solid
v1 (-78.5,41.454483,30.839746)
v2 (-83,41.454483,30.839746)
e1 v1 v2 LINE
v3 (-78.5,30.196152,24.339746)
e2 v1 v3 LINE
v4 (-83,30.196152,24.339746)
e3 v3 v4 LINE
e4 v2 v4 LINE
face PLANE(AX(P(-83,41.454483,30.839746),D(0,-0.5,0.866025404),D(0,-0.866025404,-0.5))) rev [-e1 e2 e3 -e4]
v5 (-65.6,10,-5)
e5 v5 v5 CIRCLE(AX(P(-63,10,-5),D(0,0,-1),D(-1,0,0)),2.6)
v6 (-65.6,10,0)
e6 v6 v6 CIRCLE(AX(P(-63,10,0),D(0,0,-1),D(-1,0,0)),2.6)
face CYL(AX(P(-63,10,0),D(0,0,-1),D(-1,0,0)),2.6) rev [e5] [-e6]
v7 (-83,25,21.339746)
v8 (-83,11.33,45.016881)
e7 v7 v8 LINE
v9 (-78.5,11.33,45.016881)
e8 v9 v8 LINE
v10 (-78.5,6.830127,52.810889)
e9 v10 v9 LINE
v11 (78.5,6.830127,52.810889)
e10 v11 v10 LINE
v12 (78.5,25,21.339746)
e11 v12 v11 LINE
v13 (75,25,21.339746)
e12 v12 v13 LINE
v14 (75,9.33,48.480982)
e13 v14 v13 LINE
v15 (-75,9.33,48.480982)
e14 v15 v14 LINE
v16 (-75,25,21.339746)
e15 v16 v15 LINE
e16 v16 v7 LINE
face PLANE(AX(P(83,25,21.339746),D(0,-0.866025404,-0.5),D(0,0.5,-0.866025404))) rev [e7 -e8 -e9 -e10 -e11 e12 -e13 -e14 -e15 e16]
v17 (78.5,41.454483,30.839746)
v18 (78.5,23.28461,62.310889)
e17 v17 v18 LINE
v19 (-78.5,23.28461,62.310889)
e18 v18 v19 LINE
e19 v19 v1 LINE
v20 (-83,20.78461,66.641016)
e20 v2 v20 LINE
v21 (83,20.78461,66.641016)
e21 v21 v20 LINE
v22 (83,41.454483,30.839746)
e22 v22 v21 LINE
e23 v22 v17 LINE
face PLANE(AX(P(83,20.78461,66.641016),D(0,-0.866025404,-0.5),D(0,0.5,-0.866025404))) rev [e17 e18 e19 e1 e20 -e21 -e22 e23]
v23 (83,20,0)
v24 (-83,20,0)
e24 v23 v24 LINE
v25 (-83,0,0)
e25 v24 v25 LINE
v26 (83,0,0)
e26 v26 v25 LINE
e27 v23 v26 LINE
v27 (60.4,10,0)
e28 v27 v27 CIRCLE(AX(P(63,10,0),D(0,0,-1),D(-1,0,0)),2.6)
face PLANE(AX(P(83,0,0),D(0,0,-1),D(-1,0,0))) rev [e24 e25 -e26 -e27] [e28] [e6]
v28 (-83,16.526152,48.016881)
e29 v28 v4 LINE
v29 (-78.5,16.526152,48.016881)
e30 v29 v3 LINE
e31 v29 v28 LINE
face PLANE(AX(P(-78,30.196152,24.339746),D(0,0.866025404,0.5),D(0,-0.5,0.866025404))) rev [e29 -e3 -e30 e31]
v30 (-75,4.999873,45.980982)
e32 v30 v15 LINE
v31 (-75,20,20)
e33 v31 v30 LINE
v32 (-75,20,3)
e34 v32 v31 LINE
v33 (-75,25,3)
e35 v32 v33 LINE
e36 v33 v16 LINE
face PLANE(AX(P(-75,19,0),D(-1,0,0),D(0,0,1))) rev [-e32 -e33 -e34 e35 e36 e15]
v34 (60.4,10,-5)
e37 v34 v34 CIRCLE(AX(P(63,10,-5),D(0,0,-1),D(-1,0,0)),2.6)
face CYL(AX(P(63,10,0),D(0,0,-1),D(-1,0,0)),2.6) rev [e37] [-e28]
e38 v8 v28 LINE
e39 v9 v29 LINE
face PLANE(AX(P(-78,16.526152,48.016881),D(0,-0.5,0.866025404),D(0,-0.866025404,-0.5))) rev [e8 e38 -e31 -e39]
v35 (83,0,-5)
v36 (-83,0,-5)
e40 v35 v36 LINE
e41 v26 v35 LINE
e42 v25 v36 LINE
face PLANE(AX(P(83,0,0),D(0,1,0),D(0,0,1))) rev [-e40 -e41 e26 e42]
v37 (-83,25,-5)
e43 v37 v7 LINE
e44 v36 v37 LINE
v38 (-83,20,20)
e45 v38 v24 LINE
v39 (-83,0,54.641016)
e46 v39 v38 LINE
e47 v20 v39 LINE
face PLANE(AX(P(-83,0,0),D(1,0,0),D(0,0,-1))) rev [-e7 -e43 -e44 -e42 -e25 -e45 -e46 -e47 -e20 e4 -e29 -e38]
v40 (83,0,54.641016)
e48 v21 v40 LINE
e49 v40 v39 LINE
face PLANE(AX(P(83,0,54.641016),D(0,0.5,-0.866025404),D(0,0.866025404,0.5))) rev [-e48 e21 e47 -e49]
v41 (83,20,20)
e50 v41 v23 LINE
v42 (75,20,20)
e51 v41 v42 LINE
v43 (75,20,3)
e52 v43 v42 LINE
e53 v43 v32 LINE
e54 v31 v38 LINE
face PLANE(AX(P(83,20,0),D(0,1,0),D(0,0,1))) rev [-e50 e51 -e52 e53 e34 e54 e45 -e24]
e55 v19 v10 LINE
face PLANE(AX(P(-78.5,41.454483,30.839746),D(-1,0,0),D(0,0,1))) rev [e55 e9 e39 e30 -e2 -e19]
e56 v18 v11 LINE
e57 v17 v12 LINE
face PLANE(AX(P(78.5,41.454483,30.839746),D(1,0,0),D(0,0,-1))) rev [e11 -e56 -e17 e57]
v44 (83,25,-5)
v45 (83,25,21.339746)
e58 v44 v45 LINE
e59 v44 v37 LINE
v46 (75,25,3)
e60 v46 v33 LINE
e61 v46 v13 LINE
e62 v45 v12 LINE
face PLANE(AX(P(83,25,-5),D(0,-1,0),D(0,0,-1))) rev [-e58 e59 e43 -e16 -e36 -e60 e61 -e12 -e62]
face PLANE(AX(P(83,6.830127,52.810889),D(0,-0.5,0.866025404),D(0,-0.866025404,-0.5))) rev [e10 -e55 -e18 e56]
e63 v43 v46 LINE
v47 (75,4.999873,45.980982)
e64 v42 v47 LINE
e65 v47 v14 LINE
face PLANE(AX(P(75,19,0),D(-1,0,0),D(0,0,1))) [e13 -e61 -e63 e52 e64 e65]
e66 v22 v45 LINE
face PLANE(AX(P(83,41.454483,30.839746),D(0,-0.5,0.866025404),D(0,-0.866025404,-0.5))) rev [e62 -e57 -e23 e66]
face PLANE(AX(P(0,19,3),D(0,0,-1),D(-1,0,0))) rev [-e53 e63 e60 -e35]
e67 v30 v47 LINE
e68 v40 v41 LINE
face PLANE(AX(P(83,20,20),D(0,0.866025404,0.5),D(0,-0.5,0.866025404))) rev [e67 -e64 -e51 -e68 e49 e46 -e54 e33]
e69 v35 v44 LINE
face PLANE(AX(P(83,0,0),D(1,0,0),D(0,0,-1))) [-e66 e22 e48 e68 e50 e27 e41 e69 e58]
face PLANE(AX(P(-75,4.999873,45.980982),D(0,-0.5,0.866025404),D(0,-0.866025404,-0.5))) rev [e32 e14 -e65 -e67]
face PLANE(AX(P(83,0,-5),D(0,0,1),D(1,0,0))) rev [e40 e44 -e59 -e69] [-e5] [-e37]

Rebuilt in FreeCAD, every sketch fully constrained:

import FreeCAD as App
import Part
import Sketcher
Q = App.Units.Quantity

doc = App.newDocument("Part")
body = doc.addObject("PartDesign::Body", "Body")

# Sketch on YZ plane
sketch1 = doc.addObject("Sketcher::SketchObject", "Sketch")
body.addObject(sketch1)
sketch1.AttachmentSupport = (doc.YZ_Plane, [""])
sketch1.MapMode = "FlatFace"
sketch1.addGeometry([
    Part.LineSegment(App.Vector(20, 0, 0), App.Vector(0, 0, 0)),  # 0
    Part.LineSegment(App.Vector(0, 0, 0), App.Vector(0, -5, 0)),  # 1
    Part.LineSegment(App.Vector(0, -5, 0), App.Vector(25, -5, 0)),  # 2
    Part.LineSegment(App.Vector(25, -5, 0), App.Vector(25, 21, 0)),  # 3
    Part.LineSegment(App.Vector(25, 21, 0), App.Vector(7, 53, 0)),  # 4
    Part.LineSegment(App.Vector(7, 53, 0), App.Vector(23, 62, 0)),  # 5
    Part.LineSegment(App.Vector(23, 62, 0), App.Vector(21, 67, 0)),  # 6
    Part.LineSegment(App.Vector(21, 67, 0), App.Vector(0, 55, 0)),  # 7
    Part.LineSegment(App.Vector(0, 55, 0), App.Vector(20, 20, 0)),  # 8
    Part.LineSegment(App.Vector(20, 20, 0), App.Vector(20, 0, 0)),  # 9
], False)
sketch1.addConstraint([
    Sketcher.Constraint("Coincident", 0, 2, 1, 1),
    Sketcher.Constraint("Coincident", 1, 2, 2, 1),
    Sketcher.Constraint("Coincident", 2, 2, 3, 1),
    Sketcher.Constraint("Coincident", 3, 2, 4, 1),
    Sketcher.Constraint("Coincident", 4, 2, 5, 1),
    Sketcher.Constraint("Coincident", 5, 2, 6, 1),
    Sketcher.Constraint("Coincident", 6, 2, 7, 1),
    Sketcher.Constraint("Coincident", 7, 2, 8, 1),
    Sketcher.Constraint("Coincident", 8, 2, 9, 1),
    Sketcher.Constraint("Coincident", 9, 2, 0, 1),
    Sketcher.Constraint("Horizontal", 0),
    Sketcher.Constraint("Vertical", 1),
    Sketcher.Constraint("Horizontal", 2),
    Sketcher.Constraint("Vertical", 3),
    Sketcher.Constraint("Vertical", 9),
    Sketcher.Constraint("Coincident", 0, 2, -1, 1),
    Sketcher.Constraint("PointOnObject", 7, 2, -2),
    Sketcher.Constraint("Perpendicular", 4, 5),
    Sketcher.Constraint("Perpendicular", 5, 6),
    Sketcher.Constraint("Perpendicular", 6, 7),
    Sketcher.Constraint("Perpendicular", 7, 8),
    Sketcher.Constraint("Equal", 0, 9),
    Sketcher.Constraint("DistanceX", 0, 2, 0, 1, 20.0),
    Sketcher.Constraint("DistanceX", 2, 1, 2, 2, 25.0),
    Sketcher.Constraint("DistanceY", 1, 2, 1, 1, 5.0),
    Sketcher.Constraint("Angle", 4, Q("120 deg")),
    Sketcher.Constraint("Distance", 5, 19.0),
    Sketcher.Constraint("Distance", 6, 5.0),
    Sketcher.Constraint("Distance", 7, 24.0),
])
pad1 = doc.addObject("PartDesign::Pad", "Pad")
body.addObject(pad1)
pad1.Profile = sketch1
pad1.Length = 166
pad1.Midplane = True

# Sketch on an angled plane
sketch2 = doc.addObject("Sketcher::SketchObject", "Sketch001")
body.addObject(sketch2)
sketch2.Placement = App.Placement(App.Vector(0, 27.990381, 16.160254), App.Rotation(App.Vector(1, 0, 0), App.Vector(0, 0.5, -0.866025404), App.Vector(0, 0.866025404, 0.5), "ZXY"))
sketch2.addGeometry([
    Part.LineSegment(App.Vector(-83, -6, 0), App.Vector(-83, -42.3, 0)),  # 0
    Part.LineSegment(App.Vector(-83, -42.3, 0), App.Vector(-78.5, -42.3, 0)),  # 1
    Part.LineSegment(App.Vector(-78.5, -42.3, 0), App.Vector(-78.5, -6, 0)),  # 2
    Part.LineSegment(App.Vector(-78.5, -6, 0), App.Vector(-83, -6, 0)),  # 3
    Part.LineSegment(App.Vector(78.5, -6, 0), App.Vector(78.5, -42.3, 0)),  # 4
    Part.LineSegment(App.Vector(78.5, -42.3, 0), App.Vector(83, -42.3, 0)),  # 5
    Part.LineSegment(App.Vector(83, -42.3, 0), App.Vector(83, -6, 0)),  # 6
    Part.LineSegment(App.Vector(83, -6, 0), App.Vector(78.5, -6, 0)),  # 7
], False)
sketch2.addConstraint([
    Sketcher.Constraint("Coincident", 0, 2, 1, 1),
    Sketcher.Constraint("Coincident", 1, 2, 2, 1),
    Sketcher.Constraint("Coincident", 2, 2, 3, 1),
    Sketcher.Constraint("Coincident", 3, 2, 0, 1),
    Sketcher.Constraint("Coincident", 4, 2, 5, 1),
    Sketcher.Constraint("Coincident", 5, 2, 6, 1),
    Sketcher.Constraint("Coincident", 6, 2, 7, 1),
    Sketcher.Constraint("Coincident", 7, 2, 4, 1),
    Sketcher.Constraint("Vertical", 0),
    Sketcher.Constraint("Horizontal", 1),
    Sketcher.Constraint("Vertical", 2),
    Sketcher.Constraint("Horizontal", 3),
    Sketcher.Constraint("Vertical", 4),
    Sketcher.Constraint("Horizontal", 5),
    Sketcher.Constraint("Vertical", 6),
    Sketcher.Constraint("Horizontal", 7),
    Sketcher.Constraint("Symmetric", 1, 2, 4, 2, -2),
    Sketcher.Constraint("Symmetric", 3, 2, 6, 2, -2),
    Sketcher.Constraint("DistanceX", 1, 1, 1, 2, 4.5),
    Sketcher.Constraint("DistanceX", 0, 2, -1, 1, 83.0),
    Sketcher.Constraint("DistanceY", 0, 2, 0, 1, 36.339746),
    Sketcher.Constraint("DistanceY", 0, 2, -1, 1, 42.320508),
])
pad2 = doc.addObject("PartDesign::Pad", "Pad001")
body.addObject(pad2)
pad2.Profile = sketch2
pad2.Length = 19

# Sketch on XZ plane
sketch3 = doc.addObject("Sketcher::SketchObject", "Sketch002")
body.addObject(sketch3)
sketch3.AttachmentSupport = (doc.XZ_Plane, [""])
sketch3.MapMode = "FlatFace"
sketch3.AttachmentOffset = App.Placement(App.Vector(0, 0, -25), App.Rotation())
sketch3.addGeometry([
    Part.LineSegment(App.Vector(-75, 3, 0), App.Vector(-75, 21, 0)),
    Part.LineSegment(App.Vector(-75, 21, 0), App.Vector(75, 21, 0)),
    Part.LineSegment(App.Vector(75, 21, 0), App.Vector(75, 3, 0)),
    Part.LineSegment(App.Vector(75, 3, 0), App.Vector(-75, 3, 0)),
], False)
sketch3.addConstraint([
    Sketcher.Constraint("Coincident", 0, 2, 1, 1),
    Sketcher.Constraint("Coincident", 1, 2, 2, 1),
    Sketcher.Constraint("Coincident", 2, 2, 3, 1),
    Sketcher.Constraint("Coincident", 3, 2, 0, 1),
    Sketcher.Constraint("Vertical", 0),
    Sketcher.Constraint("Horizontal", 1),
    Sketcher.Constraint("Vertical", 2),
    Sketcher.Constraint("Horizontal", 3),
    Sketcher.Constraint("DistanceX", 1, 1, 1, 2, 150.0),
    Sketcher.Constraint("DistanceX", 0, 2, -1, 1, 75.0),
    Sketcher.Constraint("DistanceY", -1, 1, 2, 2, 3.0),
    Sketcher.Constraint("DistanceY", 0, 1, 0, 2, 18.339746),
])
pocket1 = doc.addObject("PartDesign::Pocket", "Pocket")
body.addObject(pocket1)
pocket1.Profile = sketch3
pocket1.Length = 6
pocket1.Reversed = True

# Sketch on an angled plane
sketch4 = doc.addObject("Sketcher::SketchObject", "Sketch003")
body.addObject(sketch4)
sketch4.Placement = App.Placement(App.Vector(0, 27.990381, 16.160254), App.Rotation(App.Vector(1, 0, 0), App.Vector(0, 0.5, -0.866025404), App.Vector(0, 0.866025404, 0.5), "ZXY"))
sketch4.addGeometry([
    Part.LineSegment(App.Vector(-75, -6, 0), App.Vector(-75, -37, 0)),
    Part.LineSegment(App.Vector(-75, -37, 0), App.Vector(75, -37, 0)),
    Part.LineSegment(App.Vector(75, -37, 0), App.Vector(75, -6, 0)),
    Part.LineSegment(App.Vector(75, -6, 0), App.Vector(-75, -6, 0)),
], False)
sketch4.addConstraint([
    Sketcher.Constraint("Coincident", 0, 2, 1, 1),
    Sketcher.Constraint("Coincident", 1, 2, 2, 1),
    Sketcher.Constraint("Coincident", 2, 2, 3, 1),
    Sketcher.Constraint("Coincident", 3, 2, 0, 1),
    Sketcher.Constraint("Vertical", 0),
    Sketcher.Constraint("Horizontal", 1),
    Sketcher.Constraint("Vertical", 2),
    Sketcher.Constraint("Horizontal", 3),
    Sketcher.Constraint("DistanceX", 1, 1, 1, 2, 150.0),
    Sketcher.Constraint("DistanceX", 0, 2, -1, 1, 75.0),
    Sketcher.Constraint("DistanceY", 0, 2, 0, 1, 31.34),
    Sketcher.Constraint("DistanceY", 0, 2, -1, 1, 37.320762),
])
pocket2 = doc.addObject("PartDesign::Pocket", "Pocket001")
body.addObject(pocket2)
pocket2.Profile = sketch4
pocket2.Length = 5

# Sketch on YZ plane
sketch5 = doc.addObject("Sketcher::SketchObject", "Sketch004")
body.addObject(sketch5)
sketch5.AttachmentSupport = (doc.YZ_Plane, [""])
sketch5.MapMode = "FlatFace"
sketch5.AttachmentOffset = App.Placement(App.Vector(0, 0, -83), App.Rotation())
sketch5.addGeometry([
    Part.LineSegment(App.Vector(25, 21, 0), App.Vector(11, 45, 0)),
    Part.LineSegment(App.Vector(11, 45, 0), App.Vector(17, 48, 0)),
    Part.LineSegment(App.Vector(17, 48, 0), App.Vector(30, 24, 0)),
    Part.LineSegment(App.Vector(30, 24, 0), App.Vector(25, 21, 0)),
], False)
sketch5.addConstraint([
    Sketcher.Constraint("Coincident", 0, 2, 1, 1),
    Sketcher.Constraint("Coincident", 1, 2, 2, 1),
    Sketcher.Constraint("Coincident", 2, 2, 3, 1),
    Sketcher.Constraint("Coincident", 3, 2, 0, 1),
    Sketcher.Constraint("Perpendicular", 0, 1),
    Sketcher.Constraint("Perpendicular", 1, 2),
    Sketcher.Constraint("Perpendicular", 2, 3),
    Sketcher.Constraint("Angle", 0, Q("120 deg")),
    Sketcher.Constraint("Distance", 1, 6.0),
    Sketcher.Constraint("DistanceX", -1, 1, 3, 2, 25.0),
    Sketcher.Constraint("Distance", 0, 27.34),
    Sketcher.Constraint("DistanceY", -1, 1, 0, 2, 45.016881),
])
pocket3 = doc.addObject("PartDesign::Pocket", "Pocket002")
body.addObject(pocket3)
pocket3.Profile = sketch5
pocket3.Length = 5
pocket3.Reversed = True

# Sketch on XY plane
sketch6 = doc.addObject("Sketcher::SketchObject", "Sketch005")
body.addObject(sketch6)
sketch6.AttachmentSupport = (doc.XY_Plane, [""])
sketch6.MapMode = "FlatFace"
sketch6.AttachmentOffset = App.Placement(App.Vector(0, 0, -5), App.Rotation())
sketch6.addGeometry([
    Part.Circle(App.Vector(63, 10, 0), App.Vector(0, 0, 1), 2.6),
    Part.Circle(App.Vector(-63, 10, 0), App.Vector(0, 0, 1), 2.6),
], False)
sketch6.addConstraint([
    Sketcher.Constraint("Equal", 0, 1),
    Sketcher.Constraint("Symmetric", 0, 3, 1, 3, -2),
    Sketcher.Constraint("Diameter", 0, 5.2),
    Sketcher.Constraint("DistanceX", -1, 1, 0, 3, 63.0),
    Sketcher.Constraint("DistanceY", -1, 1, 0, 3, 10.0),
])
pocket4 = doc.addObject("PartDesign::Pocket", "Pocket003")
body.addObject(pocket4)
pocket4.Profile = sketch6
pocket4.Length = 5
pocket4.Reversed = True

doc.recompute()
